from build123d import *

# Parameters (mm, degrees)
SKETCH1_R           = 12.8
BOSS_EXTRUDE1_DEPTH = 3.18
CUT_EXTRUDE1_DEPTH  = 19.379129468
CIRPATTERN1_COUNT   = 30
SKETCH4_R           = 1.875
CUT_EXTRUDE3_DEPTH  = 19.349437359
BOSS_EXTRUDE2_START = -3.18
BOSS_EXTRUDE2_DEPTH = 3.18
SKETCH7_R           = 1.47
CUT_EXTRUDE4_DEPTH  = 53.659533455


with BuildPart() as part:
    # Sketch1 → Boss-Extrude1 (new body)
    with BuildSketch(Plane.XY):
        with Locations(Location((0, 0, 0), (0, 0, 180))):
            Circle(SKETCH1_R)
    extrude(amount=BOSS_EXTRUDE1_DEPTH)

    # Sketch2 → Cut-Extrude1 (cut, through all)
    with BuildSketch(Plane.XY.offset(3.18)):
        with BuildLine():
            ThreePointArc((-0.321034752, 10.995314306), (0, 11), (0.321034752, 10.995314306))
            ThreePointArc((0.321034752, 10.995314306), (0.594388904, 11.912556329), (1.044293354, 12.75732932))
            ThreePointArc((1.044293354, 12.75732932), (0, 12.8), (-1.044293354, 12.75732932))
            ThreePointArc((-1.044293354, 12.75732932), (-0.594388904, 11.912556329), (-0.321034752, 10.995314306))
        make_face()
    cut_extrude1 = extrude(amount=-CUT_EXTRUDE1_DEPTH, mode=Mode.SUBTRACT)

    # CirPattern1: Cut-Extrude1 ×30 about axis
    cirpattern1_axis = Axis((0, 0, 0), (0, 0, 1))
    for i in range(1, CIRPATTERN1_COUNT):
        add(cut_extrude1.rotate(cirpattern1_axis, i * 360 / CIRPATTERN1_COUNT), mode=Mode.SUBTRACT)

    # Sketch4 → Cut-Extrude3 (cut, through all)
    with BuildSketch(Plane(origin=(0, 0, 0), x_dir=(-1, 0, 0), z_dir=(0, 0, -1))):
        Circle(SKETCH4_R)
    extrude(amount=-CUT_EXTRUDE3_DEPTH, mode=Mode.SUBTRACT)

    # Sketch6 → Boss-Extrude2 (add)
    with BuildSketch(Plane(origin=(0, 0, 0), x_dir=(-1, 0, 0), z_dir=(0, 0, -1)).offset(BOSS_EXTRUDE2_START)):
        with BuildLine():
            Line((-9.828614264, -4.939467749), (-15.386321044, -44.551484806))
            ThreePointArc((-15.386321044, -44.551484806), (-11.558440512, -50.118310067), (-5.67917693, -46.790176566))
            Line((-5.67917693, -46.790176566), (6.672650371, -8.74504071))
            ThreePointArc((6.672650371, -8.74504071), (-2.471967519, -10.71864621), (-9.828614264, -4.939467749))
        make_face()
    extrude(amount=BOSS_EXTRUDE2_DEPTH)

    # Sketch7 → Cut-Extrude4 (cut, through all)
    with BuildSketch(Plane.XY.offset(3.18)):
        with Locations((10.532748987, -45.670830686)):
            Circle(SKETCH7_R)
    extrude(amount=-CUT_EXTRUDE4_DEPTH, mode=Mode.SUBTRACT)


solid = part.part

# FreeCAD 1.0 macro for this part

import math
import FreeCAD as App
import Part
import Sketcher
from FreeCAD import Vector

doc = App.newDocument("Part")
body = doc.addObject("PartDesign::Body", "Body")

sketch1 = doc.addObject("Sketcher::SketchObject", "Sketch")
body.addObject(sketch1)
sketch1.AttachmentSupport = (doc.XY_Plane, [""])
sketch1.MapMode = "FlatFace"
sketch1.addGeometry(Part.Circle(Vector(0, 0, 0), Vector(0, 0, 1), 13), False)
sketch1.addConstraint(Sketcher.Constraint("Coincident", 0, 3, -1, 1))
sketch1.addConstraint(Sketcher.Constraint("Diameter", 0, 25.6))
pad1 = doc.addObject("PartDesign::Pad", "Pad")
body.addObject(pad1)
pad1.Profile = sketch1
pad1.Length = 3.18

sketch2 = doc.addObject("Sketcher::SketchObject", "Sketch001")
body.addObject(sketch2)
sketch2.AttachmentSupport = (doc.XY_Plane, [""])
sketch2.MapMode = "FlatFace"
sketch2.AttachmentOffset = App.Placement(Vector(0, 0, 3.18), App.Rotation())
sketch2.addGeometry(Part.ArcOfCircle(Part.Circle(Vector(0, 0, 0), Vector(0, 0, 1), 11), math.radians(88.33), math.radians(91.67)), False)
sketch2.addGeometry(Part.ArcOfCircle(Part.Circle(Vector(5, 10.1, 0), Vector(0, 0, 1), 4.8), math.radians(146), math.radians(169)), False)
sketch2.addGeometry(Part.ArcOfCircle(Part.Circle(Vector(0, 0, 0), Vector(0, 0, 1), 12.8), math.radians(85.32), math.radians(94.68)), False)
sketch2.addGeometry(Part.ArcOfCircle(Part.Circle(Vector(-5, 10.1, 0), Vector(0, 0, 1), 4.8), math.radians(11), math.radians(34)), False)
sketch2.addConstraint(Sketcher.Constraint("Coincident", 0, 1, 1, 2))
sketch2.addConstraint(Sketcher.Constraint("Coincident", 1, 1, 2, 1))
sketch2.addConstraint(Sketcher.Constraint("Coincident", 2, 2, 3, 2))
sketch2.addConstraint(Sketcher.Constraint("Coincident", 3, 1, 0, 2))
sketch2.addConstraint(Sketcher.Constraint("Coincident", 0, 3, -1, 1))
sketch2.addConstraint(Sketcher.Constraint("Coincident", 2, 3, -1, 1))
sketch2.addConstraint(Sketcher.Constraint("Equal", 1, 3))
sketch2.addConstraint(Sketcher.Constraint("Symmetric", 1, 3, 3, 3, -2))
sketch2.addConstraint(Sketcher.Constraint("Radius", 0, 11.0))
sketch2.addConstraint(Sketcher.Constraint("Radius", 1, 4.8))
sketch2.addConstraint(Sketcher.Constraint("Radius", 2, 12.8))
sketch2.addConstraint(Sketcher.Constraint("DistanceX", -1, 1, 1, 3, 5.034861))
sketch2.addConstraint(Sketcher.Constraint("DistanceY", -1, 1, 1, 1, 12.757329))
pocket1 = doc.addObject("PartDesign::Pocket", "Pocket")
body.addObject(pocket1)
pocket1.Profile = sketch2
pocket1.Type = "ThroughAll"
doc.recompute()

polarpattern = doc.addObject("PartDesign::PolarPattern", "PolarPattern")
body.addObject(polarpattern)
polarpattern.Originals = [pocket1]
polarpattern.Axis = (doc.Z_Axis, [""])
polarpattern.Angle = 360
polarpattern.Occurrences = 30
body.Tip = polarpattern

sketch3 = doc.addObject("Sketcher::SketchObject", "Sketch002")
body.addObject(sketch3)
sketch3.AttachmentSupport = (doc.XY_Plane, [""])
sketch3.MapMode = "FlatFace"
sketch3.addGeometry(Part.Circle(Vector(0, 0, 0), Vector(0, 0, 1), 1.9), False)
sketch3.addConstraint(Sketcher.Constraint("Coincident", 0, 3, -1, 1))
sketch3.addConstraint(Sketcher.Constraint("Diameter", 0, 3.75))
pocket2 = doc.addObject("PartDesign::Pocket", "Pocket001")
body.addObject(pocket2)
pocket2.Profile = sketch3
pocket2.Type = "ThroughAll"
pocket2.Reversed = True

sketch4 = doc.addObject("Sketcher::SketchObject", "Sketch003")
body.addObject(sketch4)
sketch4.AttachmentSupport = (doc.XY_Plane, [""])
sketch4.MapMode = "FlatFace"
sketch4.AttachmentOffset = App.Placement(Vector(0, 0, 3.18), App.Rotation())
sketch4.addGeometry(Part.LineSegment(Vector(10, -5, 0), Vector(15, -45, 0)), False)
sketch4.addGeometry(Part.ArcOfCircle(Part.Circle(Vector(10, -45, 0), Vector(0, 0, 1), 5), math.radians(-162), math.radians(8)), False)
sketch4.addGeometry(Part.LineSegment(Vector(6, -47, 0), Vector(-7, -9, 0)), False)
sketch4.addGeometry(Part.ArcOfCircle(Part.Circle(Vector(0, 0, 0), Vector(0, 0, 1), 11), math.radians(-127), math.radians(-27)), False)
sketch4.addConstraint(Sketcher.Constraint("Tangent", 0, 2, 1, 2))
sketch4.addConstraint(Sketcher.Constraint("Tangent", 1, 1, 2, 1))
sketch4.addConstraint(Sketcher.Constraint("Coincident", 2, 2, 3, 1))
sketch4.addConstraint(Sketcher.Constraint("Coincident", 3, 2, 0, 1))
sketch4.addConstraint(Sketcher.Constraint("Coincident", 3, 3, -1, 1))
sketch4.addConstraint(Sketcher.Constraint("Equal", 0, 2))
sketch4.addConstraint(Sketcher.Constraint("Radius", 1, 5.0))
sketch4.addConstraint(Sketcher.Constraint("Radius", 3, 11.0))
sketch4.addConstraint(Sketcher.Constraint("Distance", 0, 40.0))
sketch4.addConstraint(Sketcher.Constraint("DistanceY", 1, 3, -1, 1, 45.246198))
sketch4.addConstraint(Sketcher.Constraint("DistanceX", -1, 1, 1, 3, 10.434819))
pad2 = doc.addObject("PartDesign::Pad", "Pad001")
body.addObject(pad2)
pad2.Profile = sketch4
pad2.Length = 3.18
pad2.Reversed = True

sketch5 = doc.addObject("Sketcher::SketchObject", "Sketch004")
body.addObject(sketch5)
sketch5.AttachmentSupport = (doc.XY_Plane, [""])
sketch5.MapMode = "FlatFace"
sketch5.AttachmentOffset = App.Placement(Vector(0, 0, 3.18), App.Rotation())
sketch5.addGeometry(Part.Circle(Vector(10.5, -45.7, 0), Vector(0, 0, 1), 1.5), False)
sketch5.addConstraint(Sketcher.Constraint("Diameter", 0, 2.94))
sketch5.addConstraint(Sketcher.Constraint("DistanceX", -1, 1, 0, 3, 10.532749))
sketch5.addConstraint(Sketcher.Constraint("DistanceY", 0, 3, -1, 1, 45.670831))
pocket3 = doc.addObject("PartDesign::Pocket", "Pocket002")
body.addObject(pocket3)
pocket3.Profile = sketch5
pocket3.Type = "ThroughAll"

doc.recompute()
